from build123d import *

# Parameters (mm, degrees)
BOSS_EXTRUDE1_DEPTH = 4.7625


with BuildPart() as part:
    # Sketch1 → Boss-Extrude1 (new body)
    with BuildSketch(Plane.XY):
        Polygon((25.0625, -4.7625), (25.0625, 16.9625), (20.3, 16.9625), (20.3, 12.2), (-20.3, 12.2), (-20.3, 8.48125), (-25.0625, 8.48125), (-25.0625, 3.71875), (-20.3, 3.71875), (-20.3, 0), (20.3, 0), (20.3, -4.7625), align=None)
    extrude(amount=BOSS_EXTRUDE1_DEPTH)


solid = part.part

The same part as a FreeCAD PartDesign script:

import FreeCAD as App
import Part
import Sketcher
from FreeCAD import Vector

doc = App.newDocument("Part")
body = doc.addObject("PartDesign::Body", "Body")

sketch1 = body.newObject("Sketcher::SketchObject", "Sketch")
sketch1.AttachmentSupport = (doc.getObject("XY_Plane"), [""])
sketch1.MapMode = "FlatFace"
sketch1.addGeometry([
    Part.LineSegment(Vector(25.0625, -4.7625, 0), Vector(25.0625, 16.9625, 0)),
    Part.LineSegment(Vector(25.0625, 16.9625, 0), Vector(20.3, 16.9625, 0)),
    Part.LineSegment(Vector(20.3, 16.9625, 0), Vector(20.3, 12.2, 0)),
    Part.LineSegment(Vector(20.3, 12.2, 0), Vector(-20.3, 12.2, 0)),
    Part.LineSegment(Vector(-20.3, 12.2, 0), Vector(-20.3, 8.48125, 0)),
    Part.LineSegment(Vector(-20.3, 8.48125, 0), Vector(-25.0625, 8.48125, 0)),
    Part.LineSegment(Vector(-25.0625, 8.48125, 0), Vector(-25.0625, 3.71875, 0)),
    Part.LineSegment(Vector(-25.0625, 3.71875, 0), Vector(-20.3, 3.71875, 0)),
    Part.LineSegment(Vector(-20.3, 3.71875, 0), Vector(-20.3, 0, 0)),
    Part.LineSegment(Vector(-20.3, 0, 0), Vector(20.3, 0, 0)),
    Part.LineSegment(Vector(20.3, 0, 0), Vector(20.3, -4.7625, 0)),
    Part.LineSegment(Vector(20.3, -4.7625, 0), Vector(25.0625, -4.7625, 0)),
], False)
sketch1.addConstraint([
    Sketcher.Constraint("Coincident", 0, 2, 1, 1),
    Sketcher.Constraint("Coincident", 1, 2, 2, 1),
    Sketcher.Constraint("Coincident", 2, 2, 3, 1),
    Sketcher.Constraint("Coincident", 3, 2, 4, 1),
    Sketcher.Constraint("Coincident", 4, 2, 5, 1),
    Sketcher.Constraint("Coincident", 5, 2, 6, 1),
    Sketcher.Constraint("Coincident", 6, 2, 7, 1),
    Sketcher.Constraint("Coincident", 7, 2, 8, 1),
    Sketcher.Constraint("Coincident", 8, 2, 9, 1),
    Sketcher.Constraint("Coincident", 9, 2, 10, 1),
    Sketcher.Constraint("Coincident", 10, 2, 11, 1),
    Sketcher.Constraint("Coincident", 11, 2, 0, 1),
    Sketcher.Constraint("Vertical", 0),
    Sketcher.Constraint("Horizontal", 1),
    Sketcher.Constraint("Vertical", 2),
    Sketcher.Constraint("Horizontal", 3),
    Sketcher.Constraint("Vertical", 4),
    Sketcher.Constraint("Horizontal", 5),
    Sketcher.Constraint("Vertical", 6),
    Sketcher.Constraint("Horizontal", 7),
    Sketcher.Constraint("Vertical", 8),
    Sketcher.Constraint("Horizontal", 9),
    Sketcher.Constraint("Vertical", 10),
    Sketcher.Constraint("Horizontal", 11),
    Sketcher.Constraint("Symmetric", 8, 2, 9, 2, -1, 1),
    Sketcher.Constraint("Vertical", 4, 2, 7, 2),
    Sketcher.Constraint("Vertical", 2, 2, 9, 2),
    Sketcher.Constraint("Equal", 1, 5),
    Sketcher.Constraint("Equal", 11, 2),
    Sketcher.Constraint("Equal", 2, 6),
    Sketcher.Constraint("Equal", 4, 8),
    Sketcher.Constraint("Equal", 6, 10),
    Sketcher.Constraint("DistanceX", 3, 2, 3, 1, 40.6),
    Sketcher.Constraint("DistanceY", -1, 1, 2, 2, 12.2),
    Sketcher.Constraint("DistanceY", 0, 1, 0, 2, 21.725),
])
pad1 = body.newObject("PartDesign::Pad", "Pad")
pad1.Profile = sketch1
pad1.Length = 4.7625

doc.recompute()
